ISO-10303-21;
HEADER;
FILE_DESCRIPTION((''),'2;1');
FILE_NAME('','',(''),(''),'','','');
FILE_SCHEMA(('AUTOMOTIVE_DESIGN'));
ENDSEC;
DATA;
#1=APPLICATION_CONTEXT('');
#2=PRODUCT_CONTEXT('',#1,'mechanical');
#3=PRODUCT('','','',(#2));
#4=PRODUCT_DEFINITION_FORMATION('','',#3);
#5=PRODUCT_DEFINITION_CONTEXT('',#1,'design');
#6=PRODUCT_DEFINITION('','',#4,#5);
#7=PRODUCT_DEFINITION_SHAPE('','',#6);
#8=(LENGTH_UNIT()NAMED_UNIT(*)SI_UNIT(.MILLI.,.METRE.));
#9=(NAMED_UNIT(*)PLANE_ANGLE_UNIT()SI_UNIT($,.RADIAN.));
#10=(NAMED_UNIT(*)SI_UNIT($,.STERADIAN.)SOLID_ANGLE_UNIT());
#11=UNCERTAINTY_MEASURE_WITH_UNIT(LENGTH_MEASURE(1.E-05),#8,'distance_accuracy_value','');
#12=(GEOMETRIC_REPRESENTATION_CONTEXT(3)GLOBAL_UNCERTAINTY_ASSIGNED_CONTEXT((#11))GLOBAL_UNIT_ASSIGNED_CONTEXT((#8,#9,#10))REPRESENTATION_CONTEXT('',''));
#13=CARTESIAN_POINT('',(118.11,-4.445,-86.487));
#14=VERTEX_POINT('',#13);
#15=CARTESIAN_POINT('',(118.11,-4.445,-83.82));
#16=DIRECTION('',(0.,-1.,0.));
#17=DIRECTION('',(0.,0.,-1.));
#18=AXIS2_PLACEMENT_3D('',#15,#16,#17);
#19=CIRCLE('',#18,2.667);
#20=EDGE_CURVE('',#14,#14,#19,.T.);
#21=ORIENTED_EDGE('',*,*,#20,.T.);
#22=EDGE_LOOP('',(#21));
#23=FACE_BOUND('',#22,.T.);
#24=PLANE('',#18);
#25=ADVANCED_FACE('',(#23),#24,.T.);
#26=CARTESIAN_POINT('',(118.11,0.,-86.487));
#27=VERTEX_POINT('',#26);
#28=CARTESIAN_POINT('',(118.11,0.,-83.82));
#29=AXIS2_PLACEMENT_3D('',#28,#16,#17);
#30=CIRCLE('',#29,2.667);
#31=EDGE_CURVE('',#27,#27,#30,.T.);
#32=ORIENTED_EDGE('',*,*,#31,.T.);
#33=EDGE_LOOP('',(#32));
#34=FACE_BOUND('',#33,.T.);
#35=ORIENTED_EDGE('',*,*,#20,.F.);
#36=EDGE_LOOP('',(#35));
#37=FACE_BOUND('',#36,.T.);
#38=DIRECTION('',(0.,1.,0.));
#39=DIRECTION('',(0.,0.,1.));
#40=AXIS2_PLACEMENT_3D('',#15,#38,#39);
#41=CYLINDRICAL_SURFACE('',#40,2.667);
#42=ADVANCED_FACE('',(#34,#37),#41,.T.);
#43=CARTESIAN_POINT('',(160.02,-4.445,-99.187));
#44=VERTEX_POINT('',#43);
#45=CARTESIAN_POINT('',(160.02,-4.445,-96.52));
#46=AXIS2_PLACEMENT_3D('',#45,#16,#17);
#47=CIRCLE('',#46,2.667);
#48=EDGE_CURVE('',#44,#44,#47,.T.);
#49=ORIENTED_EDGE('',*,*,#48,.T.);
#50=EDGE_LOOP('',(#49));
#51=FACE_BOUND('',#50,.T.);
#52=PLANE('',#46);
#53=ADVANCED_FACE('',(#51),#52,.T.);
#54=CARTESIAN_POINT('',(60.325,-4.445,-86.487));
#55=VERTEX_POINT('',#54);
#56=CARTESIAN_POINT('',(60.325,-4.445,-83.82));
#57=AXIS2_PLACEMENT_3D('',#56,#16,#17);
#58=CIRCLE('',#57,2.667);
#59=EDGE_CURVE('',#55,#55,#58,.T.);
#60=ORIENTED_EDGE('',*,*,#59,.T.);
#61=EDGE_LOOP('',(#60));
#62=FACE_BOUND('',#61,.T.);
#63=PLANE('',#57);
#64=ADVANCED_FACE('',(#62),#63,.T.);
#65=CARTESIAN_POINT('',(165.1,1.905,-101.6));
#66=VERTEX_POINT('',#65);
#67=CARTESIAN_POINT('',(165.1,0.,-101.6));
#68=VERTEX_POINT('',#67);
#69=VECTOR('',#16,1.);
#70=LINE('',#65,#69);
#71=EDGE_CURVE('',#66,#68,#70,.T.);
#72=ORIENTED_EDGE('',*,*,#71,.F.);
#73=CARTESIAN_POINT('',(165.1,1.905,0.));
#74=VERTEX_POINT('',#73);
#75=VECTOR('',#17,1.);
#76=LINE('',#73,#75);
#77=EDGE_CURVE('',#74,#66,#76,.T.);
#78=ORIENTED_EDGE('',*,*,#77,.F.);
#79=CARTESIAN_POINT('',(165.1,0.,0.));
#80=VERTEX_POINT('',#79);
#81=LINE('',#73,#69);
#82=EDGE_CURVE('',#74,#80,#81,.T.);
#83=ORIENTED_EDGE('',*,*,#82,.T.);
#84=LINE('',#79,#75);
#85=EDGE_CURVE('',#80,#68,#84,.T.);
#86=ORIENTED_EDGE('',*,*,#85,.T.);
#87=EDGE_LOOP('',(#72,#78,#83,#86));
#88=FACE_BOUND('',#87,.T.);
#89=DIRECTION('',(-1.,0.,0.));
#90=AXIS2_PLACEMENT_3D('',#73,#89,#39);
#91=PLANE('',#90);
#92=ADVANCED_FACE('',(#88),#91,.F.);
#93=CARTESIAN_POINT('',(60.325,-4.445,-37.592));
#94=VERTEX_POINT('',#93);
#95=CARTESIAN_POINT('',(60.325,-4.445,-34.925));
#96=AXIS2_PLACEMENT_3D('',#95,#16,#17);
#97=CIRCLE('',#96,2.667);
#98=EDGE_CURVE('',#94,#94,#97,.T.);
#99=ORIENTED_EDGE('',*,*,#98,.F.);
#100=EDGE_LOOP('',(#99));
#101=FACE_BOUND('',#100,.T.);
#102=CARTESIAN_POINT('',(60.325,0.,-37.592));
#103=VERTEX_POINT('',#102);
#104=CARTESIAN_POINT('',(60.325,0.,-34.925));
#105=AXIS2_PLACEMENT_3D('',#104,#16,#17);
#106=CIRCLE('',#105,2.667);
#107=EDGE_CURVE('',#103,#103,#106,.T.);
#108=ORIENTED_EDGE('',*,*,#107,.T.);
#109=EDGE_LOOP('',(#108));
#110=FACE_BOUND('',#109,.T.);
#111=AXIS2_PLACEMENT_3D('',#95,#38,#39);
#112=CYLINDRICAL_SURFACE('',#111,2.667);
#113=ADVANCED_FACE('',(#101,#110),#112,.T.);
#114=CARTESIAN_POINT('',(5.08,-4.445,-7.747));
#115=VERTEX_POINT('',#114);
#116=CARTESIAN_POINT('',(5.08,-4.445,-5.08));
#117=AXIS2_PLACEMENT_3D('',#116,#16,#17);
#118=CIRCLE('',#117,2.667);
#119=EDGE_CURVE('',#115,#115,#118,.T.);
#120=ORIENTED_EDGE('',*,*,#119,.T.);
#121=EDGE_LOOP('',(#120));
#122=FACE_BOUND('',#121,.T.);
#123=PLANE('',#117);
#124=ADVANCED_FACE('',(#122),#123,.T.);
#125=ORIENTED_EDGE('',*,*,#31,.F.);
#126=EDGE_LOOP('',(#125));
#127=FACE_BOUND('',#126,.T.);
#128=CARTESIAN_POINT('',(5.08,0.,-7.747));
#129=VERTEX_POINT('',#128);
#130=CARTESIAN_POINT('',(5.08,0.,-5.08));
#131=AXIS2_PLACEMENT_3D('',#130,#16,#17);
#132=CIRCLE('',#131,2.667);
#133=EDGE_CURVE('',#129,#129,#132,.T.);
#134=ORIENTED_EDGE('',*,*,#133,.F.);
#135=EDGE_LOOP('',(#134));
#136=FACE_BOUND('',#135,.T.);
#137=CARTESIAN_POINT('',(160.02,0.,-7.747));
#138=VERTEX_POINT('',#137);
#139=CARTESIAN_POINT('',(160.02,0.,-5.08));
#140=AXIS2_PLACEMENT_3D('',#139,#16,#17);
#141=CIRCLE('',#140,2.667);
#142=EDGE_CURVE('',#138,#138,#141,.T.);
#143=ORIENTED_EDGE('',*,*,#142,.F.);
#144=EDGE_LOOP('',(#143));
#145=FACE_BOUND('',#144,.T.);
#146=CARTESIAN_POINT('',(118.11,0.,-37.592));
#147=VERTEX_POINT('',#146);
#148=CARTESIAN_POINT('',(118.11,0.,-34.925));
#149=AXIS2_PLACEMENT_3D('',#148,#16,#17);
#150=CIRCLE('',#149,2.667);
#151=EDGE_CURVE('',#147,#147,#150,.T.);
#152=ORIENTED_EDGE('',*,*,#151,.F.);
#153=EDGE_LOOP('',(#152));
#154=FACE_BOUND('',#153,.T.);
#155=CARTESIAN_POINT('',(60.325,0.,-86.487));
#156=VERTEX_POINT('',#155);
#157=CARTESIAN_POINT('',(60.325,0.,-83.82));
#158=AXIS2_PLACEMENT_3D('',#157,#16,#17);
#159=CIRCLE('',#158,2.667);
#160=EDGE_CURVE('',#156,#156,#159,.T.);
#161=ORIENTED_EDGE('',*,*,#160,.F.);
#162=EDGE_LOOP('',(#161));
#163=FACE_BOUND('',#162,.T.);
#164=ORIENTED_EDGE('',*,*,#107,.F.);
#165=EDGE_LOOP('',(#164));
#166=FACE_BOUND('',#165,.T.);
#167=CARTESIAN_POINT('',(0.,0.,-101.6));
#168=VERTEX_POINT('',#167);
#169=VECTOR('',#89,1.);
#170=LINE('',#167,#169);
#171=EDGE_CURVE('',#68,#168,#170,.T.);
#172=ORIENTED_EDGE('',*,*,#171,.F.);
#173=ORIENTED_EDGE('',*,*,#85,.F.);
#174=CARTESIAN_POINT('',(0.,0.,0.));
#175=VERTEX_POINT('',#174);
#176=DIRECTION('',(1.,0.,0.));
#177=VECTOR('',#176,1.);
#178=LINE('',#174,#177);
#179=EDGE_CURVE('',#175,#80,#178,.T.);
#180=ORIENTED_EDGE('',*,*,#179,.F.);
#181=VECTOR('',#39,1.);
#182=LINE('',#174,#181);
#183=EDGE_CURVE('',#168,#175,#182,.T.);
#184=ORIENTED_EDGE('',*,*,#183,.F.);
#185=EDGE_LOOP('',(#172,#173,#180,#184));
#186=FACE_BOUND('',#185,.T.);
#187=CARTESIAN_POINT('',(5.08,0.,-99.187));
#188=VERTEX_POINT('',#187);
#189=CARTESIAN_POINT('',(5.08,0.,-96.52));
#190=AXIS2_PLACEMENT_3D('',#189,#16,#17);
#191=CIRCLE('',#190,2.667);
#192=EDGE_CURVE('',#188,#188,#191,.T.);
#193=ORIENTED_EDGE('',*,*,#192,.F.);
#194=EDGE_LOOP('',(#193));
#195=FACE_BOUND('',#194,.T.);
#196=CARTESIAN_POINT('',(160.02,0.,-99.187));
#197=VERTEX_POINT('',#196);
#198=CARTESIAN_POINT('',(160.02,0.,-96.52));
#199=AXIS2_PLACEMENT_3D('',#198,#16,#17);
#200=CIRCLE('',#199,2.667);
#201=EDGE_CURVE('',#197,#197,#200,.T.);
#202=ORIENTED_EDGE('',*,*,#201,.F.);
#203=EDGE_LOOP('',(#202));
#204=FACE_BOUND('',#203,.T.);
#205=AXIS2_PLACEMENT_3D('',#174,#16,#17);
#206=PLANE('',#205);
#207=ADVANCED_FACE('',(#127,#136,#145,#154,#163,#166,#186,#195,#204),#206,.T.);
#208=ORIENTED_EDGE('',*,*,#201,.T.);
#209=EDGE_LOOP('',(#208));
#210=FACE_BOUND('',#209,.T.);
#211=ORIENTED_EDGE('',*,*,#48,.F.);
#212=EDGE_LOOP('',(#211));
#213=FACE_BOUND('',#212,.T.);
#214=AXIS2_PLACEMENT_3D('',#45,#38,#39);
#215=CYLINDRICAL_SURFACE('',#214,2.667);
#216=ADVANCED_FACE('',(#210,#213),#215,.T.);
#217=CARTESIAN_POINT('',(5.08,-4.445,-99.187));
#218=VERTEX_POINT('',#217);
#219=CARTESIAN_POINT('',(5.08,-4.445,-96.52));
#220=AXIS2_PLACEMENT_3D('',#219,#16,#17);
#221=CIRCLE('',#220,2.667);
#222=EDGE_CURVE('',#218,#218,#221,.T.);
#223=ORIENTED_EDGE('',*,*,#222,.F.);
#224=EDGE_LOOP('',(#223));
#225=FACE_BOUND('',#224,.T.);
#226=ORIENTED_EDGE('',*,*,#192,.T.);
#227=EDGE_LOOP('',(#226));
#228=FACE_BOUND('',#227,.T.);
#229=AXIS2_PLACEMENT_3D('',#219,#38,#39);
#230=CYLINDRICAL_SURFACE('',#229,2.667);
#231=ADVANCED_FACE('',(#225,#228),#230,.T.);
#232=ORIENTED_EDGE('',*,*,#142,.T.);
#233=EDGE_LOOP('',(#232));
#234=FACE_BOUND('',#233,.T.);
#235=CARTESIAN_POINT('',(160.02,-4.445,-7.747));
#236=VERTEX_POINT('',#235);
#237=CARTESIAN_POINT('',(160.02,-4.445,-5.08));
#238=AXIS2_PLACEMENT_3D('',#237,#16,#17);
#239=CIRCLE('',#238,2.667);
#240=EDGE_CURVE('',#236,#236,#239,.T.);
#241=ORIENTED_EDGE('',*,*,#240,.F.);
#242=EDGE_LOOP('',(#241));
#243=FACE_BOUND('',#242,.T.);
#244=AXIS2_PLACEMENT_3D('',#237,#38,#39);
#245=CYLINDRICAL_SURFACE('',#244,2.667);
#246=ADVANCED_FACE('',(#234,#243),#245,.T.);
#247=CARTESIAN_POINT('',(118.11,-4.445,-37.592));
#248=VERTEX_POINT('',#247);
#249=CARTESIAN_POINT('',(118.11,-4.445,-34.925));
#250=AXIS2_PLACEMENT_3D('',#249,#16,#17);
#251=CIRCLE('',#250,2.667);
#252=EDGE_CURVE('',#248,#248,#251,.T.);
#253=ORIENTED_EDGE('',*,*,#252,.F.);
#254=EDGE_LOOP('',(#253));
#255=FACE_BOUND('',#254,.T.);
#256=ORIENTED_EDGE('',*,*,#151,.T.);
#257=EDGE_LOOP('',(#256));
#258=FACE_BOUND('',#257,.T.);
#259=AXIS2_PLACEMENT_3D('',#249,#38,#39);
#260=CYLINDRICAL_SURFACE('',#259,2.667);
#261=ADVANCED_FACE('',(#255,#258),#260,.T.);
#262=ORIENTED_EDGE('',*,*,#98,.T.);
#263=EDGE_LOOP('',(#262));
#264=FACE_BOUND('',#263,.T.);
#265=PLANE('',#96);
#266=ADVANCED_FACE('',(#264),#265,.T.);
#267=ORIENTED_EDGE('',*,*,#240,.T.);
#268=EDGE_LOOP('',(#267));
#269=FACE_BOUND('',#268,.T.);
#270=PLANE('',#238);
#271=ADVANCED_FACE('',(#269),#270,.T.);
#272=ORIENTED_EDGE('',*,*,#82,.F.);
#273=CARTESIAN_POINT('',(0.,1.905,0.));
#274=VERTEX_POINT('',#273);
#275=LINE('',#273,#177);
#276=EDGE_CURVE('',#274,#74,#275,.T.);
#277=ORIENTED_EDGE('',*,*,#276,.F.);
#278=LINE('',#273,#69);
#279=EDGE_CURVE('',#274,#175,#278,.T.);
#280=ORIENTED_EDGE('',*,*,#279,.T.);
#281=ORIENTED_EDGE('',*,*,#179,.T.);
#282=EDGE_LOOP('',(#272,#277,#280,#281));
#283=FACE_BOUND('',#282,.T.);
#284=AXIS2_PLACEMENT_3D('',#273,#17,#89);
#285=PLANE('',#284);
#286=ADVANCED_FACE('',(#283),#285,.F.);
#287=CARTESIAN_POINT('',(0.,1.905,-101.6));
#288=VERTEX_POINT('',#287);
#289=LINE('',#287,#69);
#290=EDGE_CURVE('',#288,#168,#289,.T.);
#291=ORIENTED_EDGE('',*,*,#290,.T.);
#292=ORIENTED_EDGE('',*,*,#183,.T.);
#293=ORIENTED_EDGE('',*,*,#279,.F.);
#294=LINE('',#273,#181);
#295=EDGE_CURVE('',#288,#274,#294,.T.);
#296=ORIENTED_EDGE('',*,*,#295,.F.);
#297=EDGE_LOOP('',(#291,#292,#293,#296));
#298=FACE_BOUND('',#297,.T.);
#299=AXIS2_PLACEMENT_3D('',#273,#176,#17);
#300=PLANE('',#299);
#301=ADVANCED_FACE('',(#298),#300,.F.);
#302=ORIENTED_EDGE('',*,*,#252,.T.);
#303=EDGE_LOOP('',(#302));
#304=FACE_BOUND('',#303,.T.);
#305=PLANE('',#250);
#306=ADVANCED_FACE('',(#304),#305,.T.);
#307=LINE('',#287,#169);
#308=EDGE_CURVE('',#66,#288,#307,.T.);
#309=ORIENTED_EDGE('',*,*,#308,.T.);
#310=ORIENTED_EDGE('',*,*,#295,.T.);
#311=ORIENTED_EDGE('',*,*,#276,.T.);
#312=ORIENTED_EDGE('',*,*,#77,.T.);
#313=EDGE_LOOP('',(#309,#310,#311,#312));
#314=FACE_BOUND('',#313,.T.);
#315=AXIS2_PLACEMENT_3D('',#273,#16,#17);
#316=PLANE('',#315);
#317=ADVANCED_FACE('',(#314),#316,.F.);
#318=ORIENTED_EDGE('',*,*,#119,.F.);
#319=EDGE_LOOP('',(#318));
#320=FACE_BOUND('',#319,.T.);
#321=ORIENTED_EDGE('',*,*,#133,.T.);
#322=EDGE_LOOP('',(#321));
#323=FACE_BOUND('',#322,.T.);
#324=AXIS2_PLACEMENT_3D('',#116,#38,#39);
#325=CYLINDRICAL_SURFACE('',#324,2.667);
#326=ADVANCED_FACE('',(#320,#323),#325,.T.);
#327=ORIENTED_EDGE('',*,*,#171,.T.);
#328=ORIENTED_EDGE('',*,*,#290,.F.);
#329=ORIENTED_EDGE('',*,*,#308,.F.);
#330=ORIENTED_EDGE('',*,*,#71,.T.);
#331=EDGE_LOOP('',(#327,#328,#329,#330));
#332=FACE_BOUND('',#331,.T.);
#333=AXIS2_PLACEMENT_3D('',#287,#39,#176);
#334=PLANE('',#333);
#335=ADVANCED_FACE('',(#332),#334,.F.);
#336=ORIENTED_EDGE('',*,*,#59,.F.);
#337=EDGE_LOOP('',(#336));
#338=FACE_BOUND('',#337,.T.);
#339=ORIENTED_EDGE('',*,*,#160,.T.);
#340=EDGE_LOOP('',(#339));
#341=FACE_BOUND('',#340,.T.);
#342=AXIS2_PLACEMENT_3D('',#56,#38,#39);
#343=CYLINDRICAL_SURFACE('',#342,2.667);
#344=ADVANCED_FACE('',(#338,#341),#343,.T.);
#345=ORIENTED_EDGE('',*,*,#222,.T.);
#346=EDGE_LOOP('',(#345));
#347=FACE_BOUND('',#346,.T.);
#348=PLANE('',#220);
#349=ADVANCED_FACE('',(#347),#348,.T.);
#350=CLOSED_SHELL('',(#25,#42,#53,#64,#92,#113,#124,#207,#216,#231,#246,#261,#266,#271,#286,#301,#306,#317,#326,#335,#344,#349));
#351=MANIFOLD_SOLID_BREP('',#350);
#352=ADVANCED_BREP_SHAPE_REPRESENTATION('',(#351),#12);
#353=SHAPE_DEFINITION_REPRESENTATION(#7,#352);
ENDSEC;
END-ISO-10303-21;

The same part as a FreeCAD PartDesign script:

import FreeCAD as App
import Part
import Sketcher

V = App.Vector
Q = App.Units.Quantity


def add_polygon(sketch, points):
    """Adds a closed chain of lines whose ends are joined by coincident constraints."""
    first, n = sketch.GeometryCount, len(points)
    for a, b in zip(points, points[1:] + points[:1]):
        sketch.addGeometry(Part.LineSegment(App.Vector(*a, 0), App.Vector(*b, 0)), False)
    for i in range(n):
        sketch.addConstraint(Sketcher.Constraint("Coincident", first + i, 2, first + (i + 1) % n, 1))

doc = App.newDocument("Part")
params = doc.addObject("Spreadsheet::Sheet", "Params")
for row, (alias, value) in enumerate([
    ("sketch1_height", "4 in"),
    ("sketch1_width", "6.5 in"),
    ("pad1_length", "0.075 in"),
    ("sketch2_diameter", "0.21 in"),
    ("pad2_length", "0.175 in"),
], start=1):
    params.set(f"A{row}", alias)
    params.set(f"B{row}", "=" + value)
    params.setAlias(f"B{row}", alias)

body = doc.addObject("PartDesign::Body", "Body")

sketch1 = doc.addObject("Sketcher::SketchObject", "Sketch")
body.addObject(sketch1)
sketch1.AttachmentSupport = (doc.XZ_Plane, [""])
sketch1.MapMode = "FlatFace"
add_polygon(sketch1, [(0, -102), (0, 0), (165, 0), (165, -102)])
sketch1.addConstraint([
    Sketcher.Constraint("Vertical", 0),
    Sketcher.Constraint("Horizontal", 1),
    Sketcher.Constraint("Vertical", 2),
    Sketcher.Constraint("Horizontal", 3),
    Sketcher.Constraint("Coincident", 0, 2, -1, 1),
    Sketcher.Constraint("DistanceY", 0, 1, 0, 2, Q("4 in")),
    Sketcher.Constraint("DistanceX", 1, 1, 1, 2, Q("6.5 in")),
])
sketch1.setExpression("Constraints[9]", "Params.sketch1_height")
sketch1.setExpression("Constraints[10]", "Params.sketch1_width")
pad1 = doc.addObject("PartDesign::Pad", "Pad")
body.addObject(pad1)
pad1.Profile = sketch1
pad1.setExpression("Length", "Params.pad1_length")
pad1.Reversed = True

sketch2 = doc.addObject("Sketcher::SketchObject", "Sketch001")
body.addObject(sketch2)
sketch2.AttachmentSupport = (doc.XZ_Plane, [""])
sketch2.MapMode = "FlatFace"
sketch2.addGeometry([
    Part.Circle(V(5.1, -96.5, 0), V(0, 0, 1), 2.7),
    Part.Circle(V(5.1, -5.1, 0), V(0, 0, 1), 2.7),
    Part.Circle(V(160, -5.1, 0), V(0, 0, 1), 2.7),
    Part.Circle(V(160, -96.5, 0), V(0, 0, 1), 2.7),
    Part.Circle(V(118.1, -83.8, 0), V(0, 0, 1), 2.7),
    Part.Circle(V(60.3, -83.8, 0), V(0, 0, 1), 2.7),
    Part.Circle(V(60.3, -34.9, 0), V(0, 0, 1), 2.7),
    Part.Circle(V(118.1, -34.9, 0), V(0, 0, 1), 2.7),
], False)
sketch2.addConstraint([
    Sketcher.Constraint("Equal", 0, 1),
    Sketcher.Constraint("Equal", 1, 2),
    Sketcher.Constraint("Equal", 2, 3),
    Sketcher.Constraint("Equal", 3, 4),
    Sketcher.Constraint("Equal", 4, 5),
    Sketcher.Constraint("Equal", 5, 6),
    Sketcher.Constraint("Equal", 6, 7),
    Sketcher.Constraint("Horizontal", 1, 3, 2, 3),
    Sketcher.Constraint("Horizontal", 0, 3, 3, 3),
    Sketcher.Constraint("Horizontal", 4, 3, 5, 3),
    Sketcher.Constraint("Horizontal", 6, 3, 7, 3),
    Sketcher.Constraint("Vertical", 0, 3, 1, 3),
    Sketcher.Constraint("Vertical", 2, 3, 3, 3),
    Sketcher.Constraint("Vertical", 5, 3, 6, 3),
    Sketcher.Constraint("Vertical", 4, 3, 7, 3),
    Sketcher.Constraint("Diameter", 0, Q("0.21 in")),
    Sketcher.Constraint("DistanceX", -1, 1, 0, 3, Q("0.2 in")),
    Sketcher.Constraint("DistanceY", 0, 3, -1, 1, Q("3.8 in")),
    Sketcher.Constraint("DistanceY", 1, 3, -1, 1, Q("0.2 in")),
    Sketcher.Constraint("DistanceX", -1, 1, 2, 3, Q("6.3 in")),
    Sketcher.Constraint("DistanceY", 4, 3, -1, 1, Q("3.3 in")),
    Sketcher.Constraint("DistanceX", -1, 1, 4, 3, Q("4.65 in")),
    Sketcher.Constraint("DistanceX", -1, 1, 5, 3, Q("2.375 in")),
    Sketcher.Constraint("DistanceY", 6, 3, -1, 1, Q("1.375 in")),
])
sketch2.setExpression("Constraints[15]", "Params.sketch2_diameter")
pad2 = doc.addObject("PartDesign::Pad", "Pad001")
body.addObject(pad2)
pad2.Profile = sketch2
pad2.setExpression("Length", "Params.pad2_length")

doc.recompute()
